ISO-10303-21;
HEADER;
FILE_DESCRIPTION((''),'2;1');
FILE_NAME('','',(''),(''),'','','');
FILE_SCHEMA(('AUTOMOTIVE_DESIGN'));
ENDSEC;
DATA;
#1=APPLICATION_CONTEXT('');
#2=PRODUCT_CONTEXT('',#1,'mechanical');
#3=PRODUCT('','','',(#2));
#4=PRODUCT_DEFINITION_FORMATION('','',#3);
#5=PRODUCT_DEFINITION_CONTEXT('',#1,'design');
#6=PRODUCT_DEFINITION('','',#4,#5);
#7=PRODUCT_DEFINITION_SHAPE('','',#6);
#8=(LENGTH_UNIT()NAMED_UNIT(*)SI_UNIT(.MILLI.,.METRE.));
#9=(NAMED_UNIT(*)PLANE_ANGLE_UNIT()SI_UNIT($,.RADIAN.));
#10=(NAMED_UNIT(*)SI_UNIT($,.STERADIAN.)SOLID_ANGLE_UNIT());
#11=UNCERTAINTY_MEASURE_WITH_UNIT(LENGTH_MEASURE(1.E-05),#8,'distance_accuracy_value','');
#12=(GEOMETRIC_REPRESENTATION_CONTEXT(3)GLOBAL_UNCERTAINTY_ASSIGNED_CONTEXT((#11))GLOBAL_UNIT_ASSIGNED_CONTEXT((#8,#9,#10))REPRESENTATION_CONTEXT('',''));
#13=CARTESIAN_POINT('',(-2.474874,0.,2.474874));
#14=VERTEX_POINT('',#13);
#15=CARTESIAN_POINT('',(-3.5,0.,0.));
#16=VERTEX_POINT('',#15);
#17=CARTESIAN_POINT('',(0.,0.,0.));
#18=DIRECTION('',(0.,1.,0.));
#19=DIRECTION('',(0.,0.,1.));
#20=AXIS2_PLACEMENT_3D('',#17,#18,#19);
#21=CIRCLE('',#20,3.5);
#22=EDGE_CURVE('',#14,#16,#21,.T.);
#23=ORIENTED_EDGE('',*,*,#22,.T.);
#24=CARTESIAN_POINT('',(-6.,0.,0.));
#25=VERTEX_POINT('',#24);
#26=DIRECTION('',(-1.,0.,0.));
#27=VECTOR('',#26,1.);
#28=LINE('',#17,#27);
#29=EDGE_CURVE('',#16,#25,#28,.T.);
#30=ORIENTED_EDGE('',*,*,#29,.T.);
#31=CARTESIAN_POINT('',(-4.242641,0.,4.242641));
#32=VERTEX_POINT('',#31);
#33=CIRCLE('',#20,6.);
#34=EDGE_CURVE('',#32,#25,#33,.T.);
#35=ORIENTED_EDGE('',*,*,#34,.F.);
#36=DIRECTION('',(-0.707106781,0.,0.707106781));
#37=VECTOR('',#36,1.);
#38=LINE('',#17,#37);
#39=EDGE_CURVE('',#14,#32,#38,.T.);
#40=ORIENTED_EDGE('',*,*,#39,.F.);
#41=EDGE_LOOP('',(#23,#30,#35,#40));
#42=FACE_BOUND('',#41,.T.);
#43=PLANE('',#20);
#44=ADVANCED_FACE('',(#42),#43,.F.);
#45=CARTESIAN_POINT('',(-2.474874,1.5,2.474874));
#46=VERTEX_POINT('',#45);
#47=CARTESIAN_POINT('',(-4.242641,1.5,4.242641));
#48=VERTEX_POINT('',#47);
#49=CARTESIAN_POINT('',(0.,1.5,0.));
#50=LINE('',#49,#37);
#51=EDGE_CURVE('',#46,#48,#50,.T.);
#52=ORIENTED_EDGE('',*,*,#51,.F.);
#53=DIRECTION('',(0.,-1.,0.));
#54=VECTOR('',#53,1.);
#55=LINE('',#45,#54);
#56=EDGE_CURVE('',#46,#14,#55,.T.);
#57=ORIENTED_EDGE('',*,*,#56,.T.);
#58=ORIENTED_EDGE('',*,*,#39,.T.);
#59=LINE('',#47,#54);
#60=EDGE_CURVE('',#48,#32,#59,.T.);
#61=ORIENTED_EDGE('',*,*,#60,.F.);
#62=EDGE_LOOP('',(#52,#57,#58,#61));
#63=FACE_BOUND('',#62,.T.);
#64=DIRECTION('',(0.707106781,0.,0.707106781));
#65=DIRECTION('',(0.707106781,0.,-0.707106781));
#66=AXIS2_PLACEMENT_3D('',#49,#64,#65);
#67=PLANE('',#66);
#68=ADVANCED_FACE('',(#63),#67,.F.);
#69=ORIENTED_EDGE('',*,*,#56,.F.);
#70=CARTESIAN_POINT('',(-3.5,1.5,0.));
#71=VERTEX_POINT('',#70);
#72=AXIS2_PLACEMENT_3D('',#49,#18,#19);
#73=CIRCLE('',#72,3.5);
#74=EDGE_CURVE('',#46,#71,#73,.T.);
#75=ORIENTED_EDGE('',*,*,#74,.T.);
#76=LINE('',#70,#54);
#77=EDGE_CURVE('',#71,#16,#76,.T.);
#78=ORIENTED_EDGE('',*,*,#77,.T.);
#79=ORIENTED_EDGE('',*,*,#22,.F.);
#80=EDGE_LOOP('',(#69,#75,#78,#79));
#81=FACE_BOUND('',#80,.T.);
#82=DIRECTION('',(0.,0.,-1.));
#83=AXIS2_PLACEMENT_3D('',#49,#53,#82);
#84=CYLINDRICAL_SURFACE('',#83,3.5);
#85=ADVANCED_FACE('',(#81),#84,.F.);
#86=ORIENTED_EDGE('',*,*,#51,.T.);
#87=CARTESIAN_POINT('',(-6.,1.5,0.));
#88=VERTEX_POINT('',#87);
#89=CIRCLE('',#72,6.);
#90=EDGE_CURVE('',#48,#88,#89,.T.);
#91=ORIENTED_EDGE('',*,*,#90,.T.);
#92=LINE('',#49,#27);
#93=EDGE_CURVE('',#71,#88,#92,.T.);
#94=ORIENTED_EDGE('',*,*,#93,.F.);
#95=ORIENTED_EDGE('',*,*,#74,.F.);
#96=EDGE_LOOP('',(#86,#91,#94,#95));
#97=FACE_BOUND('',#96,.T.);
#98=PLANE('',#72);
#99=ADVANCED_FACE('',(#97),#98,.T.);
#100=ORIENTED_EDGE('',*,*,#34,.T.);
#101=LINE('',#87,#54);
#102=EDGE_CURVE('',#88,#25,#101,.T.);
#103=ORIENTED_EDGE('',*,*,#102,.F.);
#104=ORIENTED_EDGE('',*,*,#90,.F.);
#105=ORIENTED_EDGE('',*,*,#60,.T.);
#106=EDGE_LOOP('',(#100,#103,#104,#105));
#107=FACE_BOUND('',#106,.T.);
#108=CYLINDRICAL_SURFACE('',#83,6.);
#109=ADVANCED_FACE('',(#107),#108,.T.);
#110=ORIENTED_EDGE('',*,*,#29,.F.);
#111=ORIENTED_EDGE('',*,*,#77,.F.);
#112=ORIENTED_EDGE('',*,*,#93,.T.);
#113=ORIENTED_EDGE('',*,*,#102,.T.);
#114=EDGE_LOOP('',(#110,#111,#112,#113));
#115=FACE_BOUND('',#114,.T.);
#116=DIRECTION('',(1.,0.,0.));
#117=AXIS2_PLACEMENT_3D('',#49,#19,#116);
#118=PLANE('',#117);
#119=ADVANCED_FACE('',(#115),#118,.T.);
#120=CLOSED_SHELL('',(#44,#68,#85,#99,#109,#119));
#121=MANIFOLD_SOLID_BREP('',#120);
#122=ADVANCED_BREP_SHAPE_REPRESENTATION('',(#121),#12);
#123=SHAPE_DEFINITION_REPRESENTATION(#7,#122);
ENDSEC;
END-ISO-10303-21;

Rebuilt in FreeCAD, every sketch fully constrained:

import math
import FreeCAD as App
import Part
import Sketcher
from FreeCAD import Vector
Q = App.Units.Quantity

doc = App.newDocument("Part")
params = doc.addObject("Spreadsheet::Sheet", "Params")
for row, (alias, value) in enumerate([
    ("sketch1_radius", "6 mm"),
    ("sketch1_radius2", "3.5 mm"),
    ("pad1_length", "1.5 mm"),
], start=1):
    params.set(f"A{row}", alias)
    params.set(f"B{row}", "=" + value)
    params.setAlias(f"B{row}", alias)

body = doc.addObject("PartDesign::Body", "Body")

sketch1 = doc.addObject("Sketcher::SketchObject", "Sketch")
body.addObject(sketch1)
sketch1.AttachmentSupport = (doc.XZ_Plane, [""])
sketch1.MapMode = "FlatFace"
sketch1.addGeometry(Part.LineSegment(Vector(-6, 0, 0), Vector(-3.5, 0, 0)), False)
sketch1.addGeometry(Part.ArcOfCircle(Part.Circle(Vector(0, 0, 0), Vector(0, 0, 1), 3.5), math.radians(180), math.radians(495)), False)
sketch1.addGeometry(Part.LineSegment(Vector(-2.5, 2.5, 0), Vector(-4.2, 4.2, 0)), False)
sketch1.addGeometry(Part.ArcOfCircle(Part.Circle(Vector(0, 0, 0), Vector(0, 0, 1), 6), math.radians(180), math.radians(495)), False)
sketch1.addConstraint(Sketcher.Constraint("Coincident", 0, 2, 1, 1))
sketch1.addConstraint(Sketcher.Constraint("Coincident", 1, 2, 2, 1))
sketch1.addConstraint(Sketcher.Constraint("Coincident", 2, 2, 3, 2))
sketch1.addConstraint(Sketcher.Constraint("Coincident", 3, 1, 0, 1))
sketch1.addConstraint(Sketcher.Constraint("Horizontal", 0))
sketch1.addConstraint(Sketcher.Constraint("Coincident", 1, 3, -1, 1))
sketch1.addConstraint(Sketcher.Constraint("Coincident", 3, 3, -1, 1))
sketch1.addConstraint(Sketcher.Constraint("PointOnObject", 0, 2, -1))
sketch1.addConstraint(Sketcher.Constraint("Radius", 3, 6.0))
sketch1.addConstraint(Sketcher.Constraint("Radius", 1, 3.5))
sketch1.addConstraint(Sketcher.Constraint("Angle", 2, Q("135 deg")))
sketch1.addConstraint(Sketcher.Constraint("DistanceX", 2, 2, -1, 1, 4.242641))
sketch1.setExpression("Constraints[8]", "Params.sketch1_radius")
sketch1.setExpression("Constraints[9]", "Params.sketch1_radius2")
pad1 = doc.addObject("PartDesign::Pad", "Pad")
body.addObject(pad1)
pad1.Profile = sketch1
pad1.setExpression("Length", "Params.pad1_length")
pad1.Reversed = True

doc.recompute()
